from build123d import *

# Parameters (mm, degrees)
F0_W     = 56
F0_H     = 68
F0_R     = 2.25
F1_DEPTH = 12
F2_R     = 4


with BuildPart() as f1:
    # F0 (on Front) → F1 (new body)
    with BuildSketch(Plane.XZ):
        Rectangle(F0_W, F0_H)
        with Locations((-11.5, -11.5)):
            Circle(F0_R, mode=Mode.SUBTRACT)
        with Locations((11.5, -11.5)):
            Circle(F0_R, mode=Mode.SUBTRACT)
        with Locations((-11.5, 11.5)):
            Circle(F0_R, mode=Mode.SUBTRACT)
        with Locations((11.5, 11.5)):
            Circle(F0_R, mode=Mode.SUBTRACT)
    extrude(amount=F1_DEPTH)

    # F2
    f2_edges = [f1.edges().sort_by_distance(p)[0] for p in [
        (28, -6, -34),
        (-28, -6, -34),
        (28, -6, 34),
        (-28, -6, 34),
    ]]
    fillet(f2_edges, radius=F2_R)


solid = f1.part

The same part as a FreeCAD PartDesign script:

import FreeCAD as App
import Part
import Sketcher


def edges_at(feature, points):
    """Names of the edges that pass closest to the given points."""
    edges = feature.Shape.Edges
    near = lambda p: min(range(len(edges)), key=lambda i: edges[i].distToShape(Part.Vertex(*p))[0])
    return sorted({f"Edge{near(p) + 1}" for p in points})

doc = App.newDocument("Part")
params = doc.addObject("Spreadsheet::Sheet", "Params")
for row, (alias, value) in enumerate([
    ("sketch1_diameter", "4.5 mm"),
    ("sketch1_width", "56 mm"),
    ("sketch1_height", "68 mm"),
    ("pad1_length", "12 mm"),
    ("fillet_radius", "4 mm"),
], start=1):
    params.set(f"A{row}", alias)
    params.set(f"B{row}", "=" + value)
    params.setAlias(f"B{row}", alias)

body = doc.addObject("PartDesign::Body", "Body")

sketch1 = doc.addObject("Sketcher::SketchObject", "Sketch")
body.addObject(sketch1)
sketch1.AttachmentSupport = (doc.XZ_Plane, [""])
sketch1.MapMode = "FlatFace"
sketch1.addGeometry(Part.LineSegment(App.Vector(-28, 34, 0), App.Vector(-28, -34, 0)), False)
sketch1.addGeometry(Part.LineSegment(App.Vector(-28, -34, 0), App.Vector(28, -34, 0)), False)
sketch1.addGeometry(Part.LineSegment(App.Vector(28, -34, 0), App.Vector(28, 34, 0)), False)
sketch1.addGeometry(Part.LineSegment(App.Vector(28, 34, 0), App.Vector(-28, 34, 0)), False)
sketch1.addGeometry(Part.Circle(App.Vector(-11.5, -11.5, 0), App.Vector(0, 0, 1), 2.25), False)
sketch1.addGeometry(Part.Circle(App.Vector(11.5, -11.5, 0), App.Vector(0, 0, 1), 2.25), False)
sketch1.addGeometry(Part.Circle(App.Vector(-11.5, 11.5, 0), App.Vector(0, 0, 1), 2.25), False)
sketch1.addGeometry(Part.Circle(App.Vector(11.5, 11.5, 0), App.Vector(0, 0, 1), 2.25), False)
sketch1.addConstraint(Sketcher.Constraint("Coincident", 0, 2, 1, 1))
sketch1.addConstraint(Sketcher.Constraint("Coincident", 1, 2, 2, 1))
sketch1.addConstraint(Sketcher.Constraint("Coincident", 2, 2, 3, 1))
sketch1.addConstraint(Sketcher.Constraint("Coincident", 3, 2, 0, 1))
sketch1.addConstraint(Sketcher.Constraint("Vertical", 0))
sketch1.addConstraint(Sketcher.Constraint("Horizontal", 1))
sketch1.addConstraint(Sketcher.Constraint("Vertical", 2))
sketch1.addConstraint(Sketcher.Constraint("Horizontal", 3))
sketch1.addConstraint(Sketcher.Constraint("Equal", 4, 5))
sketch1.addConstraint(Sketcher.Constraint("Equal", 5, 6))
sketch1.addConstraint(Sketcher.Constraint("Equal", 6, 7))
sketch1.addConstraint(Sketcher.Constraint("Symmetric", 5, 3, 6, 3, -1, 1))
sketch1.addConstraint(Sketcher.Constraint("Symmetric", 4, 3, 7, 3, -1, 1))
sketch1.addConstraint(Sketcher.Constraint("Symmetric", 0, 2, 2, 2, -1, 1))
sketch1.addConstraint(Sketcher.Constraint("Symmetric", 4, 3, 5, 3, -2))
sketch1.addConstraint(Sketcher.Constraint("Diameter", 4, 4.5))
sketch1.addConstraint(Sketcher.Constraint("DistanceX", 1, 1, 1, 2, 56.0))
sketch1.addConstraint(Sketcher.Constraint("DistanceY", 0, 2, 0, 1, 68.0))
sketch1.addConstraint(Sketcher.Constraint("DistanceX", 4, 3, 5, 3, 23.0))
sketch1.addConstraint(Sketcher.Constraint("DistanceY", 4, 3, 6, 3, 23.0))
sketch1.setExpression("Constraints[15]", "Params.sketch1_diameter")
sketch1.setExpression("Constraints[16]", "Params.sketch1_width")
sketch1.setExpression("Constraints[17]", "Params.sketch1_height")
pad1 = doc.addObject("PartDesign::Pad", "Pad")
body.addObject(pad1)
pad1.Profile = sketch1
pad1.setExpression("Length", "Params.pad1_length")
doc.recompute()

fillet = doc.addObject("PartDesign::Fillet", "Fillet")
body.addObject(fillet)
fillet.Base = (pad1, edges_at(pad1, [
    (28, -6, -34),
    (-28, -6, -34),
    (28, -6, 34),
    (-28, -6, 34),
]))
fillet.setExpression("Radius", "Params.fillet_radius")

doc.recompute()
